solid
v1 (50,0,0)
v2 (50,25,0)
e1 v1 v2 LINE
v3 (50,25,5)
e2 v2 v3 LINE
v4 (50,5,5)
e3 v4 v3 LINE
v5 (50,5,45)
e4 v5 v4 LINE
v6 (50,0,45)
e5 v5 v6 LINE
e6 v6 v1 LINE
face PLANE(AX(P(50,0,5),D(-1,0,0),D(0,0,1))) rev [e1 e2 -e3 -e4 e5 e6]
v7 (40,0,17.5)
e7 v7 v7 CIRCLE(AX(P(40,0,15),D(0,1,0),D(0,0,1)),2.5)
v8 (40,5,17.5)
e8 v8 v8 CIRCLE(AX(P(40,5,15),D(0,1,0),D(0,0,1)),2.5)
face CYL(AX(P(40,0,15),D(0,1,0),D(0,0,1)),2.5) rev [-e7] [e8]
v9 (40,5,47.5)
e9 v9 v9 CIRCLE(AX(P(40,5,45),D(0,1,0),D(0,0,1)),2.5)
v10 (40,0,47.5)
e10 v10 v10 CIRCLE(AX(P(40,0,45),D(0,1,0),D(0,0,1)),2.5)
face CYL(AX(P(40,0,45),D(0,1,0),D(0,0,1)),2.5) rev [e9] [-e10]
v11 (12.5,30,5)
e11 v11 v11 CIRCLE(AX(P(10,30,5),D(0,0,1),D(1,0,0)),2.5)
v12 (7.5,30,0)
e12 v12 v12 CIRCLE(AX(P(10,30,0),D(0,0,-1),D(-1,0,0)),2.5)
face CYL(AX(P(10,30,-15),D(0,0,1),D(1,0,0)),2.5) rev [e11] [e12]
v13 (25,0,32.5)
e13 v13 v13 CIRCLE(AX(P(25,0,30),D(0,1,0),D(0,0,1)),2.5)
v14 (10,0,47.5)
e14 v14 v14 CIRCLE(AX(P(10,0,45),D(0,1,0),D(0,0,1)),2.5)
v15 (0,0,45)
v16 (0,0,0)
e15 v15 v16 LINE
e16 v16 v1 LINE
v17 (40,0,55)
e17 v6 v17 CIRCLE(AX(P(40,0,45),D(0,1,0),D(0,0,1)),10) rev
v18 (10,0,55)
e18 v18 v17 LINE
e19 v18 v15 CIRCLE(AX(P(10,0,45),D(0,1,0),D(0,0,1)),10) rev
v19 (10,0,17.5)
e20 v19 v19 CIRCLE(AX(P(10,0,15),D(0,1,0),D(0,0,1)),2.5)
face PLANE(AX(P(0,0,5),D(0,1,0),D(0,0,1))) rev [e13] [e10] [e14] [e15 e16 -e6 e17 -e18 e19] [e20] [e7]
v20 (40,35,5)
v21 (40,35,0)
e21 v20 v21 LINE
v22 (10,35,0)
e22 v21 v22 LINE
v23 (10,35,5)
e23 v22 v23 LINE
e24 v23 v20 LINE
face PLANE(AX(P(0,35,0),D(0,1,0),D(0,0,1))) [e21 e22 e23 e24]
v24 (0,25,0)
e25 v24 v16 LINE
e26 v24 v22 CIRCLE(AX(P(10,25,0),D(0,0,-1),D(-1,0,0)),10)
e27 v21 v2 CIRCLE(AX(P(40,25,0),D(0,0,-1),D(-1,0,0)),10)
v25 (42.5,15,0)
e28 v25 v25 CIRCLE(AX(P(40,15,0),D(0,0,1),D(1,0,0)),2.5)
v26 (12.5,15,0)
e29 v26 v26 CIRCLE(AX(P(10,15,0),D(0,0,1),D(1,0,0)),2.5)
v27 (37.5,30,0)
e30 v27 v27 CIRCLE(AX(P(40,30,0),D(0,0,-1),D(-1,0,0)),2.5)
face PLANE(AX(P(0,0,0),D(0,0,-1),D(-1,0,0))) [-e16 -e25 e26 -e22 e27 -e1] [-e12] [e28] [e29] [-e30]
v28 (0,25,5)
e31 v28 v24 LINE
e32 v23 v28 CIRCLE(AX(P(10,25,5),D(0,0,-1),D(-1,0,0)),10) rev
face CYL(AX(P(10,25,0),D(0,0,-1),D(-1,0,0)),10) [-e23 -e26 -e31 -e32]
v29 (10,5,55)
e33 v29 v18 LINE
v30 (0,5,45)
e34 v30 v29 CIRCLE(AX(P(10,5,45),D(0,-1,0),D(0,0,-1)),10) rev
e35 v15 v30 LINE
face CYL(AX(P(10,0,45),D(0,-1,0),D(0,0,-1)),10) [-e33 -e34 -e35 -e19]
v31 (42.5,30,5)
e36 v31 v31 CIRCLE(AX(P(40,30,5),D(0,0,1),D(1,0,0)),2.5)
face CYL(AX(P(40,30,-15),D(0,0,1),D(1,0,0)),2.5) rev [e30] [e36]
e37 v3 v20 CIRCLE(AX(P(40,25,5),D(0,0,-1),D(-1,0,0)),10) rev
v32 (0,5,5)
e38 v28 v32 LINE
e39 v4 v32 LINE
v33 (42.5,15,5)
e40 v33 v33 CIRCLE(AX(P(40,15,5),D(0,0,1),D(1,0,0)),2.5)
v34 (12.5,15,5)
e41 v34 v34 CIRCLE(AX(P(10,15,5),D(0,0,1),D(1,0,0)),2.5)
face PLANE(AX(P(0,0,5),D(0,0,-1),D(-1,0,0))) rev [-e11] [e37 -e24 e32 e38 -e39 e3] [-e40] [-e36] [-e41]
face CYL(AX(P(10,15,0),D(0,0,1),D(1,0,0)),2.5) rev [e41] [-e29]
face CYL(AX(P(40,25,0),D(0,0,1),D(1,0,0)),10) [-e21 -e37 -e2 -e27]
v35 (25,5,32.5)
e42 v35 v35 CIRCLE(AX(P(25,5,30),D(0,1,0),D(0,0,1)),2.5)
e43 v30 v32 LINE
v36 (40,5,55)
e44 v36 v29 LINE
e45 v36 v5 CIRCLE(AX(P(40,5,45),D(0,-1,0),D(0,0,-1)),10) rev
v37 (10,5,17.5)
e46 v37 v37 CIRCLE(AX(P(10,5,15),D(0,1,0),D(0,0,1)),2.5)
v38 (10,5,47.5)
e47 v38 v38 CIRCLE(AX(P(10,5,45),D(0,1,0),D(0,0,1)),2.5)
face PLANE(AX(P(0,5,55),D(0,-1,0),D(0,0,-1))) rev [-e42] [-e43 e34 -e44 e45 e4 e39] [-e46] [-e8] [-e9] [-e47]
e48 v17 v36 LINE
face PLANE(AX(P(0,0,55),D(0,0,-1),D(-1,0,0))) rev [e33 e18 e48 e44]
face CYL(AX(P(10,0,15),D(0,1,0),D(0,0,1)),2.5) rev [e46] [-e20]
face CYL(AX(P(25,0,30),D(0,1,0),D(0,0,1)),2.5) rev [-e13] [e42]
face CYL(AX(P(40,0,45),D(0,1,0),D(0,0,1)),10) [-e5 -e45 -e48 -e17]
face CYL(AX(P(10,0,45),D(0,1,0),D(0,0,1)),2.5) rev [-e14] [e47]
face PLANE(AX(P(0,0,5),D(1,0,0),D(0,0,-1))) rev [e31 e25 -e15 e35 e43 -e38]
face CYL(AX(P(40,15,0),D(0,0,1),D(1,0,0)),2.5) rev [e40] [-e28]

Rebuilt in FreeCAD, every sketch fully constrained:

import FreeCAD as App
import Part
import Sketcher
Q = App.Units.Quantity


def edges_at(feature, points):
    """Names of the edges that pass closest to the given points."""
    edges = feature.Shape.Edges
    near = lambda p: min(range(len(edges)), key=lambda i: edges[i].distToShape(Part.Vertex(*p))[0])
    return sorted({f"Edge{near(p) + 1}" for p in points})


def add_polygon(sketch, points):
    """Adds a closed chain of lines whose ends are joined by coincident constraints."""
    first, n = sketch.GeometryCount, len(points)
    for a, b in zip(points, points[1:] + points[:1]):
        sketch.addGeometry(Part.LineSegment(App.Vector(*a, 0), App.Vector(*b, 0)), False)
    for i in range(n):
        sketch.addConstraint(Sketcher.Constraint("Coincident", first + i, 2, first + (i + 1) % n, 1))

doc = App.newDocument("Part")
params = doc.addObject("Spreadsheet::Sheet", "Params")
for row, (alias, value) in enumerate([
    ("sketch1_width", "50 mm"),
    ("sketch1_height", "60 mm"),
    ("pad1_length", "5 mm"),
    ("sketch2_width", "50 mm"),
    ("sketch2_height", "5 mm"),
    ("pad2_length", "50 mm"),
    ("sketch3_width", "50 mm"),
    ("sketch3_height", "5 mm"),
    ("pocket1_length", "5 mm"),
    ("sketch4_diameter", "5 mm"),
    ("pocket2_length", "5 mm"),
    ("sketch5_diameter", "5 mm"),
    ("pocket3_length", "5 mm"),
    ("fillet_radius", "10 mm"),
    ("sketch6_width", "50 mm"),
    ("sketch6_height", "5 mm"),
    ("pocket4_length", "20 mm"),
    ("fillet2_radius", "10 mm"),
    ("sketch7_diameter", "5 mm"),
    ("pocket5_length", "20 mm"),
    ("sketch8_diameter", "5 mm"),
    ("pad3_length", "5 mm"),
], start=1):
    params.set(f"A{row}", alias)
    params.set(f"B{row}", "=" + value)
    params.setAlias(f"B{row}", alias)

body = doc.addObject("PartDesign::Body", "Body")

sketch1 = body.newObject("Sketcher::SketchObject", "Sketch")
sketch1.AttachmentSupport = (doc.getObject("XY_Plane"), [""])
sketch1.MapMode = "FlatFace"
add_polygon(sketch1, [(0, 60), (0, 0), (50, 0), (50, 60)])
sketch1.addConstraint([
    Sketcher.Constraint("Vertical", 0),
    Sketcher.Constraint("Horizontal", 1),
    Sketcher.Constraint("Vertical", 2),
    Sketcher.Constraint("Horizontal", 3),
    Sketcher.Constraint("Coincident", 0, 2, -1, 1),
    Sketcher.Constraint("DistanceX", 1, 1, 1, 2, Q("50 mm")),
    Sketcher.Constraint("DistanceY", 0, 2, 0, 1, Q("60 mm")),
])
sketch1.setExpression("Constraints[9]", "Params.sketch1_width")
sketch1.setExpression("Constraints[10]", "Params.sketch1_height")
pad1 = body.newObject("PartDesign::Pad", "Pad")
pad1.Profile = sketch1
pad1.setExpression("Length", "Params.pad1_length")

sketch2 = body.newObject("Sketcher::SketchObject", "Sketch001")
sketch2.AttachmentSupport = (doc.getObject("XY_Plane"), [""])
sketch2.MapMode = "FlatFace"
sketch2.AttachmentOffset = App.Placement(App.Vector(0, 0, 5), App.Rotation())
add_polygon(sketch2, [(0, 5), (0, 0), (50, 0), (50, 5)])
sketch2.addConstraint([
    Sketcher.Constraint("Vertical", 0),
    Sketcher.Constraint("Horizontal", 1),
    Sketcher.Constraint("Vertical", 2),
    Sketcher.Constraint("Horizontal", 3),
    Sketcher.Constraint("Coincident", 0, 2, -1, 1),
    Sketcher.Constraint("DistanceX", 1, 1, 1, 2, Q("50 mm")),
    Sketcher.Constraint("DistanceY", 0, 2, 0, 1, Q("5 mm")),
])
sketch2.setExpression("Constraints[9]", "Params.sketch2_width")
sketch2.setExpression("Constraints[10]", "Params.sketch2_height")
pad2 = body.newObject("PartDesign::Pad", "Pad001")
pad2.Profile = sketch2
pad2.setExpression("Length", "Params.pad2_length")

sketch3 = body.newObject("Sketcher::SketchObject", "Sketch002")
sketch3.AttachmentSupport = (doc.getObject("XZ_Plane"), [""])
sketch3.MapMode = "FlatFace"
sketch3.AttachmentOffset = App.Placement(App.Vector(0, 0, -60), App.Rotation())
add_polygon(sketch3, [(0, 0), (0, 5), (50, 5), (50, 0)])
sketch3.addConstraint([
    Sketcher.Constraint("Vertical", 0),
    Sketcher.Constraint("Horizontal", 1),
    Sketcher.Constraint("Vertical", 2),
    Sketcher.Constraint("Horizontal", 3),
    Sketcher.Constraint("Coincident", 3, 2, -1, 1),
    Sketcher.Constraint("DistanceX", 1, 1, 1, 2, Q("50 mm")),
    Sketcher.Constraint("DistanceY", 0, 1, 0, 2, Q("5 mm")),
])
sketch3.setExpression("Constraints[9]", "Params.sketch3_width")
sketch3.setExpression("Constraints[10]", "Params.sketch3_height")
pocket1 = body.newObject("PartDesign::Pocket", "Pocket")
pocket1.Profile = sketch3
pocket1.setExpression("Length", "Params.pocket1_length")
pocket1.Reversed = True

sketch4 = body.newObject("Sketcher::SketchObject", "Sketch003")
sketch4.AttachmentSupport = (doc.getObject("XZ_Plane"), [""])
sketch4.MapMode = "FlatFace"
sketch4.AttachmentOffset = App.Placement(App.Vector(0, 0, -5), App.Rotation())
sketch4.addGeometry([
    Part.Circle(App.Vector(10, 15, 0), App.Vector(0, 0, 1), 2.5),
    Part.Circle(App.Vector(25, 30, 0), App.Vector(0, 0, 1), 2.5),
    Part.Circle(App.Vector(40, 15, 0), App.Vector(0, 0, 1), 2.5),
    Part.Circle(App.Vector(40, 45, 0), App.Vector(0, 0, 1), 2.5),
    Part.Circle(App.Vector(10, 45, 0), App.Vector(0, 0, 1), 2.5),
], False)
sketch4.addConstraint([
    Sketcher.Constraint("Equal", 0, 1),
    Sketcher.Constraint("Equal", 1, 2),
    Sketcher.Constraint("Equal", 2, 3),
    Sketcher.Constraint("Equal", 3, 4),
    Sketcher.Constraint("Horizontal", 0, 3, 2, 3),
    Sketcher.Constraint("Horizontal", 3, 3, 4, 3),
    Sketcher.Constraint("Vertical", 2, 3, 3, 3),
    Sketcher.Constraint("Vertical", 0, 3, 4, 3),
    Sketcher.Constraint("Diameter", 0, Q("5 mm")),
    Sketcher.Constraint("DistanceX", -1, 1, 0, 3, Q("10 mm")),
    Sketcher.Constraint("DistanceY", -1, 1, 0, 3, Q("15 mm")),
    Sketcher.Constraint("DistanceX", -1, 1, 1, 3, Q("25 mm")),
    Sketcher.Constraint("DistanceY", -1, 1, 1, 3, Q("30 mm")),
    Sketcher.Constraint("DistanceX", -1, 1, 2, 3, Q("40 mm")),
    Sketcher.Constraint("DistanceY", -1, 1, 3, 3, Q("45 mm")),
])
sketch4.setExpression("Constraints[8]", "Params.sketch4_diameter")
pocket2 = body.newObject("PartDesign::Pocket", "Pocket001")
pocket2.Profile = sketch4
pocket2.setExpression("Length", "Params.pocket2_length")
pocket2.Reversed = True

sketch5 = body.newObject("Sketcher::SketchObject", "Sketch004")
sketch5.AttachmentSupport = (doc.getObject("XY_Plane"), [""])
sketch5.MapMode = "FlatFace"
sketch5.AttachmentOffset = App.Placement(App.Vector(0, 0, 5), App.Rotation())
sketch5.addGeometry([
    Part.Circle(App.Vector(10, 45, 0), App.Vector(0, 0, 1), 2.5),
    Part.Circle(App.Vector(25, 30, 0), App.Vector(0, 0, 1), 2.5),
    Part.Circle(App.Vector(40, 45, 0), App.Vector(0, 0, 1), 2.5),
    Part.Circle(App.Vector(40, 15, 0), App.Vector(0, 0, 1), 2.5),
    Part.Circle(App.Vector(10, 15, 0), App.Vector(0, 0, 1), 2.5),
], False)
sketch5.addConstraint([
    Sketcher.Constraint("Equal", 0, 1),
    Sketcher.Constraint("Equal", 1, 2),
    Sketcher.Constraint("Equal", 2, 3),
    Sketcher.Constraint("Equal", 3, 4),
    Sketcher.Constraint("Horizontal", 0, 3, 2, 3),
    Sketcher.Constraint("Horizontal", 3, 3, 4, 3),
    Sketcher.Constraint("Vertical", 2, 3, 3, 3),
    Sketcher.Constraint("Vertical", 0, 3, 4, 3),
    Sketcher.Constraint("Diameter", 0, Q("5 mm")),
    Sketcher.Constraint("DistanceX", -1, 1, 0, 3, Q("10 mm")),
    Sketcher.Constraint("DistanceY", -1, 1, 0, 3, Q("45 mm")),
    Sketcher.Constraint("DistanceX", -1, 1, 1, 3, Q("25 mm")),
    Sketcher.Constraint("DistanceY", -1, 1, 1, 3, Q("30 mm")),
    Sketcher.Constraint("DistanceX", -1, 1, 2, 3, Q("40 mm")),
    Sketcher.Constraint("DistanceY", -1, 1, 3, 3, Q("15 mm")),
])
sketch5.setExpression("Constraints[8]", "Params.sketch5_diameter")
pocket3 = body.newObject("PartDesign::Pocket", "Pocket002")
pocket3.Profile = sketch5
pocket3.setExpression("Length", "Params.pocket3_length")
doc.recompute()

fillet = body.newObject("PartDesign::Fillet", "Fillet")
fillet.Base = (pocket3, edges_at(pocket3, [
    (50, 55, 2.5),
    (0, 55, 2.5),
    (0, 2.5, 55),
    (50, 2.5, 55),
]))
fillet.setExpression("Radius", "Params.fillet_radius")

sketch6 = body.newObject("Sketcher::SketchObject", "Sketch005")
sketch6.AttachmentSupport = (doc.getObject("XZ_Plane"), [""])
sketch6.MapMode = "FlatFace"
sketch6.AttachmentOffset = App.Placement(App.Vector(0, 0, -55), App.Rotation())
add_polygon(sketch6, [(0, 0), (0, 5), (50, 5), (50, 0)])
sketch6.addConstraint([
    Sketcher.Constraint("Vertical", 0),
    Sketcher.Constraint("Horizontal", 1),
    Sketcher.Constraint("Vertical", 2),
    Sketcher.Constraint("Horizontal", 3),
    Sketcher.Constraint("Coincident", 3, 2, -1, 1),
    Sketcher.Constraint("DistanceX", 1, 1, 1, 2, Q("50 mm")),
    Sketcher.Constraint("DistanceY", 0, 1, 0, 2, Q("5 mm")),
])
sketch6.setExpression("Constraints[9]", "Params.sketch6_width")
sketch6.setExpression("Constraints[10]", "Params.sketch6_height")
pocket4 = body.newObject("PartDesign::Pocket", "Pocket003")
pocket4.Profile = sketch6
pocket4.setExpression("Length", "Params.pocket4_length")
pocket4.Reversed = True
doc.recompute()

fillet2 = body.newObject("PartDesign::Fillet", "Fillet001")
fillet2.Base = (pocket4, edges_at(pocket4, [(50, 35, 2.5), (0, 35, 2.5)]))
fillet2.setExpression("Radius", "Params.fillet2_radius")

sketch7 = body.newObject("Sketcher::SketchObject", "Sketch006")
sketch7.AttachmentSupport = (doc.getObject("XY_Plane"), [""])
sketch7.MapMode = "FlatFace"
sketch7.AttachmentOffset = App.Placement(App.Vector(0, 0, 5), App.Rotation())
sketch7.addGeometry([
    Part.Circle(App.Vector(10, 30, 0), App.Vector(0, 0, 1), 2.5),
    Part.Circle(App.Vector(40, 30, 0), App.Vector(0, 0, 1), 2.5),
], False)
sketch7.addConstraint([
    Sketcher.Constraint("Equal", 0, 1),
    Sketcher.Constraint("Horizontal", 0, 3, 1, 3),
    Sketcher.Constraint("Diameter", 0, Q("5 mm")),
    Sketcher.Constraint("DistanceX", -1, 1, 0, 3, Q("10 mm")),
    Sketcher.Constraint("DistanceY", -1, 1, 0, 3, Q("30 mm")),
    Sketcher.Constraint("DistanceX", -1, 1, 1, 3, Q("40 mm")),
])
sketch7.setExpression("Constraints[2]", "Params.sketch7_diameter")
pocket5 = body.newObject("PartDesign::Pocket", "Pocket004")
pocket5.Profile = sketch7
pocket5.setExpression("Length", "Params.pocket5_length")

sketch8 = body.newObject("Sketcher::SketchObject", "Sketch007")
sketch8.AttachmentSupport = (doc.getObject("XY_Plane"), [""])
sketch8.MapMode = "FlatFace"
sketch8.AttachmentOffset = App.Placement(App.Vector(0, 0, 5), App.Rotation())
sketch8.addGeometry(Part.Circle(App.Vector(25, 30, 0), App.Vector(0, 0, 1), 2.5), False)
sketch8.addConstraint([
    Sketcher.Constraint("Diameter", 0, Q("5 mm")),
    Sketcher.Constraint("DistanceX", -1, 1, 0, 3, Q("25 mm")),
    Sketcher.Constraint("DistanceY", -1, 1, 0, 3, Q("30 mm")),
])
sketch8.setExpression("Constraints[0]", "Params.sketch8_diameter")
pad3 = body.newObject("PartDesign::Pad", "Pad002")
pad3.Profile = sketch8
pad3.setExpression("Length", "Params.pad3_length")
pad3.Reversed = True

doc.recompute()
